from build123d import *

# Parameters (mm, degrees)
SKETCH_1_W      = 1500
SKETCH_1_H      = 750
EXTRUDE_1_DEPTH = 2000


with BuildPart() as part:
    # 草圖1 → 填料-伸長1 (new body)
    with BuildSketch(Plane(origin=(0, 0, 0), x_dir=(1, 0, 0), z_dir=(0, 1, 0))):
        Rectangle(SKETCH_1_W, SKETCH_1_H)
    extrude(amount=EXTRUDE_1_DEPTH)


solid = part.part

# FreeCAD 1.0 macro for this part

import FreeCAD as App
import Part
import Sketcher
Q = App.Units.Quantity


def add_polygon(sketch, points):
    """Adds a closed chain of lines whose ends are joined by coincident constraints."""
    first, n = sketch.GeometryCount, len(points)
    for a, b in zip(points, points[1:] + points[:1]):
        sketch.addGeometry(Part.LineSegment(App.Vector(*a, 0), App.Vector(*b, 0)), False)
    for i in range(n):
        sketch.addConstraint(Sketcher.Constraint("Coincident", first + i, 2, first + (i + 1) % n, 1))

doc = App.newDocument("Part")
params = doc.addObject("Spreadsheet::Sheet", "Params")
for row, (alias, value) in enumerate([
    ("sketch1_width", "1500 mm"),
    ("sketch1_height", "750 mm"),
    ("pad1_length", "2000 mm"),
], start=1):
    params.set(f"A{row}", alias)
    params.set(f"B{row}", "=" + value)
    params.setAlias(f"B{row}", alias)

body = doc.addObject("PartDesign::Body", "Body")

# Sketch on XZ plane
sketch1 = body.newObject("Sketcher::SketchObject", "Sketch")
sketch1.AttachmentSupport = (doc.getObject("XZ_Plane"), [""])
sketch1.MapMode = "FlatFace"
add_polygon(sketch1, [(-750, -375), (-750, 375), (750, 375), (750, -375)])  # lines 0-3
sketch1.addConstraint([
    Sketcher.Constraint("Vertical", 0),
    Sketcher.Constraint("Horizontal", 1),
    Sketcher.Constraint("Vertical", 2),
    Sketcher.Constraint("Horizontal", 3),
    Sketcher.Constraint("Symmetric", 0, 2, 2, 2, -1, 1),
    Sketcher.Constraint("DistanceX", 1, 1, 1, 2, Q("1500 mm")),
    Sketcher.Constraint("DistanceY", 0, 1, 0, 2, Q("750 mm")),
])
sketch1.setExpression("Constraints[9]", "Params.sketch1_width")
sketch1.setExpression("Constraints[10]", "Params.sketch1_height")
pad1 = body.newObject("PartDesign::Pad", "Pad")
pad1.Profile = sketch1
pad1.setExpression("Length", "Params.pad1_length")
pad1.Reversed = True

doc.recompute()
